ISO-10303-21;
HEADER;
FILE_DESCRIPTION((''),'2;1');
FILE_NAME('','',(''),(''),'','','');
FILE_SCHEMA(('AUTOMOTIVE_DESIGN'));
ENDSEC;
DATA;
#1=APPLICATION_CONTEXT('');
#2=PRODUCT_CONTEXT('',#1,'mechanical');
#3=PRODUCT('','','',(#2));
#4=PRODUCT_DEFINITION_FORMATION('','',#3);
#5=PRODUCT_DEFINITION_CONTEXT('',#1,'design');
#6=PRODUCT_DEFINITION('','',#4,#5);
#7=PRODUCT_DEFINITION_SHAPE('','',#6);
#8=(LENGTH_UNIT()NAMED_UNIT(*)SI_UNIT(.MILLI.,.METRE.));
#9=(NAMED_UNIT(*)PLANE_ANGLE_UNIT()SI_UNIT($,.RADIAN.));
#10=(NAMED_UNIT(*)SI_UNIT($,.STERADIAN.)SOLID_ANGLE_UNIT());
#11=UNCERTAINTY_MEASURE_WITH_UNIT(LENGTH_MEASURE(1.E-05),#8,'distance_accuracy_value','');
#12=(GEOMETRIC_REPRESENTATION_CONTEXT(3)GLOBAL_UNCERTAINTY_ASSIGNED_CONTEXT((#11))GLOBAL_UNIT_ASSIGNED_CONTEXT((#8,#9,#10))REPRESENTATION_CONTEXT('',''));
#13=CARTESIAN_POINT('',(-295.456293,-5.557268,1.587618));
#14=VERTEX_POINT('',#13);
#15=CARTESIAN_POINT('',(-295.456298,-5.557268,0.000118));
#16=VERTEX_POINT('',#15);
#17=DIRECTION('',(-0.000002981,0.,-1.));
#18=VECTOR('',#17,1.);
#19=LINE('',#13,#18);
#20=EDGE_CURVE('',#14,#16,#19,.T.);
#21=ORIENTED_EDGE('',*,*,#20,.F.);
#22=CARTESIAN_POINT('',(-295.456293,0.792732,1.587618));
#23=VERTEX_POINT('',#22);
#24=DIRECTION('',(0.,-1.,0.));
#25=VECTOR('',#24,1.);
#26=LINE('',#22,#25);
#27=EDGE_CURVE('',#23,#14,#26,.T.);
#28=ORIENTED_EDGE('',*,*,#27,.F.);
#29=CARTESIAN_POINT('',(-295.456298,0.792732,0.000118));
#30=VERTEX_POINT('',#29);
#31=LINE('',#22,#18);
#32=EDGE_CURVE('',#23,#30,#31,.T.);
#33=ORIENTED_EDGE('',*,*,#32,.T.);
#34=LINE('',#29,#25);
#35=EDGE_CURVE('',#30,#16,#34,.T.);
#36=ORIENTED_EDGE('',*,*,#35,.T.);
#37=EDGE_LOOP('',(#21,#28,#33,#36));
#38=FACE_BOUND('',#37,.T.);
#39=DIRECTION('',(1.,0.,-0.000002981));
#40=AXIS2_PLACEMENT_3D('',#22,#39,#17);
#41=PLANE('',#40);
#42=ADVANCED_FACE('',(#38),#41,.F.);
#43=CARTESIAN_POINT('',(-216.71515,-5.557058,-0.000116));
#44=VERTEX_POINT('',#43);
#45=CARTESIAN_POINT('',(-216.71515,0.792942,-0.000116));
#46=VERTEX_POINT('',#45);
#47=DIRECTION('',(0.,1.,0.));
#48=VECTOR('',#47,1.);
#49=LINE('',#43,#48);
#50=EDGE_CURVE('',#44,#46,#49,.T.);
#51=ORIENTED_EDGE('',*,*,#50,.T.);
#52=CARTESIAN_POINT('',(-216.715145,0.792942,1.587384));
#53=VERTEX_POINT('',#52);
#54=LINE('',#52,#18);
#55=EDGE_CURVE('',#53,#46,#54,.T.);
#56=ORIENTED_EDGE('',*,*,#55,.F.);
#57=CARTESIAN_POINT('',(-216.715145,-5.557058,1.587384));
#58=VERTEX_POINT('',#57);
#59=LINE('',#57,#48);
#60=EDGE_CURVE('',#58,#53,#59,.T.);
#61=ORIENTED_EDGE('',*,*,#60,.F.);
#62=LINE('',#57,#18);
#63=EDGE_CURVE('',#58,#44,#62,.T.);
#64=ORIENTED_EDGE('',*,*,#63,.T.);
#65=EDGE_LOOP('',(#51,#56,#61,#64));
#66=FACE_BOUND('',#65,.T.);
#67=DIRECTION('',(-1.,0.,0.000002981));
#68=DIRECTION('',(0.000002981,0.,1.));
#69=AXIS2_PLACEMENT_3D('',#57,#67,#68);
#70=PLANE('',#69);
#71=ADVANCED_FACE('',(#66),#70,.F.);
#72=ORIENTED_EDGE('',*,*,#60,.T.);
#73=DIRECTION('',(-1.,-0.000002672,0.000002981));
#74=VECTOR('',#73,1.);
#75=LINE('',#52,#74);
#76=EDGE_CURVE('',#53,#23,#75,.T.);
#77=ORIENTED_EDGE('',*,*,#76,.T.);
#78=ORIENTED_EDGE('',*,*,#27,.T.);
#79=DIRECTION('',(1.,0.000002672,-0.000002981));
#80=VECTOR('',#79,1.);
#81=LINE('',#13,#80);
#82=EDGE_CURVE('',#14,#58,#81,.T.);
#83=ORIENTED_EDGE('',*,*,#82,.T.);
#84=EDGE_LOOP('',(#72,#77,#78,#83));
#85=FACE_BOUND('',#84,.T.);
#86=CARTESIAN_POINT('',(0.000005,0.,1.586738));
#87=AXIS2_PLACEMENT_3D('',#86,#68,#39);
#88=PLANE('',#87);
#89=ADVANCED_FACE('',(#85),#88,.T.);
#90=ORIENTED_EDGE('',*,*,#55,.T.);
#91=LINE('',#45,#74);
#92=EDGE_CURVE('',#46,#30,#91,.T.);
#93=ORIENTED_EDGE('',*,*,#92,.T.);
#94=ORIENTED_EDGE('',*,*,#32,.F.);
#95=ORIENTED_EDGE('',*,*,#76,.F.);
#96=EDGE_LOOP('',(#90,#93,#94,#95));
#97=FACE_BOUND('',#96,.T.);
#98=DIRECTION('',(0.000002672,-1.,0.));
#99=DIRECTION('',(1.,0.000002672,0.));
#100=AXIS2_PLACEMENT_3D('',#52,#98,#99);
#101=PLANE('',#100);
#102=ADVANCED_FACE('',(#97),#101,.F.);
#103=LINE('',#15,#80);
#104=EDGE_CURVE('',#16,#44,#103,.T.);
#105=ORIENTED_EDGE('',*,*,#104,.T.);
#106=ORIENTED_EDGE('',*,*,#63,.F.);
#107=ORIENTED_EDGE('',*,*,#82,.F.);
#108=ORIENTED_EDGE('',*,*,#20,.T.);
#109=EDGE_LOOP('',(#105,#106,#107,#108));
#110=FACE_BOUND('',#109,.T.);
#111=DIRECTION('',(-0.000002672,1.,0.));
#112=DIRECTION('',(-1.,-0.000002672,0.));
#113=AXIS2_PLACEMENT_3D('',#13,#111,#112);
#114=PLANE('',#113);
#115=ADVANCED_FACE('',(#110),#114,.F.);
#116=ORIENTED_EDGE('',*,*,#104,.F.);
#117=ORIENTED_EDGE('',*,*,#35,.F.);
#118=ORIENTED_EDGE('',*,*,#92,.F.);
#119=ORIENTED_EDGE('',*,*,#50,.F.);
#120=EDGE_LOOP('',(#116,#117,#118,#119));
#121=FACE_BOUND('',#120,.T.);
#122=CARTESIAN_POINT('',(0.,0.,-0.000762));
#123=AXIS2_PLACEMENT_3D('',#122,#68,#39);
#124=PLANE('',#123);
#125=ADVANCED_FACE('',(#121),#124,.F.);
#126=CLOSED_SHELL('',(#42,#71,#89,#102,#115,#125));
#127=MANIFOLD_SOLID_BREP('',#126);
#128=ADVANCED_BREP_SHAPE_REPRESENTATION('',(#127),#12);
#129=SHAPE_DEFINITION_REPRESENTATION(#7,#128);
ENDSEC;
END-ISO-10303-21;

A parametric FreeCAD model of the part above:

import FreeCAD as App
import Part
import Sketcher
Q = App.Units.Quantity


def add_polygon(sketch, points):
    """Adds a closed chain of lines whose ends are joined by coincident constraints."""
    first, n = sketch.GeometryCount, len(points)
    for a, b in zip(points, points[1:] + points[:1]):
        sketch.addGeometry(Part.LineSegment(App.Vector(*a, 0), App.Vector(*b, 0)), False)
    for i in range(n):
        sketch.addConstraint(Sketcher.Constraint("Coincident", first + i, 2, first + (i + 1) % n, 1))

doc = App.newDocument("Part")
body = doc.addObject("PartDesign::Body", "Body")

# Sketch on XY plane
sketch1 = body.newObject("Sketcher::SketchObject", "Sketch")
sketch1.AttachmentSupport = (doc.getObject("XY_Plane"), [""])
sketch1.MapMode = "FlatFace"
sketch1.AttachmentOffset = App.Placement(App.Vector(0, 0, -0.000762), App.Rotation())
add_polygon(sketch1, [(-295, 1), (-295, -6), (-217, -6), (-217, 1)])  # lines 0-3
sketch1.addConstraint(Sketcher.Constraint("Vertical", 0))
sketch1.addConstraint(Sketcher.Constraint("Vertical", 2))
sketch1.addConstraint(Sketcher.Constraint("Parallel", 1, 3))
sketch1.addConstraint(Sketcher.Constraint("DistanceY", 0, 2, 0, 1, Q("0.25 in")))
sketch1.addConstraint(Sketcher.Constraint("DistanceX", 0, 2, -1, 1, Q("295.456298 mm")))
sketch1.addConstraint(Sketcher.Constraint("Distance", 1, Q("78.741148 mm")))
sketch1.addConstraint(Sketcher.Constraint("DistanceY", 0, 2, 1, 2, Q("0.00021 mm")))
sketch1.addConstraint(Sketcher.Constraint("DistanceY", 0, 2, -1, 1, Q("5.557268 mm")))
pad1 = body.newObject("PartDesign::Pad", "Pad")
pad1.Profile = sketch1
pad1.Length = Q("0.0625 in")

doc.recompute()
